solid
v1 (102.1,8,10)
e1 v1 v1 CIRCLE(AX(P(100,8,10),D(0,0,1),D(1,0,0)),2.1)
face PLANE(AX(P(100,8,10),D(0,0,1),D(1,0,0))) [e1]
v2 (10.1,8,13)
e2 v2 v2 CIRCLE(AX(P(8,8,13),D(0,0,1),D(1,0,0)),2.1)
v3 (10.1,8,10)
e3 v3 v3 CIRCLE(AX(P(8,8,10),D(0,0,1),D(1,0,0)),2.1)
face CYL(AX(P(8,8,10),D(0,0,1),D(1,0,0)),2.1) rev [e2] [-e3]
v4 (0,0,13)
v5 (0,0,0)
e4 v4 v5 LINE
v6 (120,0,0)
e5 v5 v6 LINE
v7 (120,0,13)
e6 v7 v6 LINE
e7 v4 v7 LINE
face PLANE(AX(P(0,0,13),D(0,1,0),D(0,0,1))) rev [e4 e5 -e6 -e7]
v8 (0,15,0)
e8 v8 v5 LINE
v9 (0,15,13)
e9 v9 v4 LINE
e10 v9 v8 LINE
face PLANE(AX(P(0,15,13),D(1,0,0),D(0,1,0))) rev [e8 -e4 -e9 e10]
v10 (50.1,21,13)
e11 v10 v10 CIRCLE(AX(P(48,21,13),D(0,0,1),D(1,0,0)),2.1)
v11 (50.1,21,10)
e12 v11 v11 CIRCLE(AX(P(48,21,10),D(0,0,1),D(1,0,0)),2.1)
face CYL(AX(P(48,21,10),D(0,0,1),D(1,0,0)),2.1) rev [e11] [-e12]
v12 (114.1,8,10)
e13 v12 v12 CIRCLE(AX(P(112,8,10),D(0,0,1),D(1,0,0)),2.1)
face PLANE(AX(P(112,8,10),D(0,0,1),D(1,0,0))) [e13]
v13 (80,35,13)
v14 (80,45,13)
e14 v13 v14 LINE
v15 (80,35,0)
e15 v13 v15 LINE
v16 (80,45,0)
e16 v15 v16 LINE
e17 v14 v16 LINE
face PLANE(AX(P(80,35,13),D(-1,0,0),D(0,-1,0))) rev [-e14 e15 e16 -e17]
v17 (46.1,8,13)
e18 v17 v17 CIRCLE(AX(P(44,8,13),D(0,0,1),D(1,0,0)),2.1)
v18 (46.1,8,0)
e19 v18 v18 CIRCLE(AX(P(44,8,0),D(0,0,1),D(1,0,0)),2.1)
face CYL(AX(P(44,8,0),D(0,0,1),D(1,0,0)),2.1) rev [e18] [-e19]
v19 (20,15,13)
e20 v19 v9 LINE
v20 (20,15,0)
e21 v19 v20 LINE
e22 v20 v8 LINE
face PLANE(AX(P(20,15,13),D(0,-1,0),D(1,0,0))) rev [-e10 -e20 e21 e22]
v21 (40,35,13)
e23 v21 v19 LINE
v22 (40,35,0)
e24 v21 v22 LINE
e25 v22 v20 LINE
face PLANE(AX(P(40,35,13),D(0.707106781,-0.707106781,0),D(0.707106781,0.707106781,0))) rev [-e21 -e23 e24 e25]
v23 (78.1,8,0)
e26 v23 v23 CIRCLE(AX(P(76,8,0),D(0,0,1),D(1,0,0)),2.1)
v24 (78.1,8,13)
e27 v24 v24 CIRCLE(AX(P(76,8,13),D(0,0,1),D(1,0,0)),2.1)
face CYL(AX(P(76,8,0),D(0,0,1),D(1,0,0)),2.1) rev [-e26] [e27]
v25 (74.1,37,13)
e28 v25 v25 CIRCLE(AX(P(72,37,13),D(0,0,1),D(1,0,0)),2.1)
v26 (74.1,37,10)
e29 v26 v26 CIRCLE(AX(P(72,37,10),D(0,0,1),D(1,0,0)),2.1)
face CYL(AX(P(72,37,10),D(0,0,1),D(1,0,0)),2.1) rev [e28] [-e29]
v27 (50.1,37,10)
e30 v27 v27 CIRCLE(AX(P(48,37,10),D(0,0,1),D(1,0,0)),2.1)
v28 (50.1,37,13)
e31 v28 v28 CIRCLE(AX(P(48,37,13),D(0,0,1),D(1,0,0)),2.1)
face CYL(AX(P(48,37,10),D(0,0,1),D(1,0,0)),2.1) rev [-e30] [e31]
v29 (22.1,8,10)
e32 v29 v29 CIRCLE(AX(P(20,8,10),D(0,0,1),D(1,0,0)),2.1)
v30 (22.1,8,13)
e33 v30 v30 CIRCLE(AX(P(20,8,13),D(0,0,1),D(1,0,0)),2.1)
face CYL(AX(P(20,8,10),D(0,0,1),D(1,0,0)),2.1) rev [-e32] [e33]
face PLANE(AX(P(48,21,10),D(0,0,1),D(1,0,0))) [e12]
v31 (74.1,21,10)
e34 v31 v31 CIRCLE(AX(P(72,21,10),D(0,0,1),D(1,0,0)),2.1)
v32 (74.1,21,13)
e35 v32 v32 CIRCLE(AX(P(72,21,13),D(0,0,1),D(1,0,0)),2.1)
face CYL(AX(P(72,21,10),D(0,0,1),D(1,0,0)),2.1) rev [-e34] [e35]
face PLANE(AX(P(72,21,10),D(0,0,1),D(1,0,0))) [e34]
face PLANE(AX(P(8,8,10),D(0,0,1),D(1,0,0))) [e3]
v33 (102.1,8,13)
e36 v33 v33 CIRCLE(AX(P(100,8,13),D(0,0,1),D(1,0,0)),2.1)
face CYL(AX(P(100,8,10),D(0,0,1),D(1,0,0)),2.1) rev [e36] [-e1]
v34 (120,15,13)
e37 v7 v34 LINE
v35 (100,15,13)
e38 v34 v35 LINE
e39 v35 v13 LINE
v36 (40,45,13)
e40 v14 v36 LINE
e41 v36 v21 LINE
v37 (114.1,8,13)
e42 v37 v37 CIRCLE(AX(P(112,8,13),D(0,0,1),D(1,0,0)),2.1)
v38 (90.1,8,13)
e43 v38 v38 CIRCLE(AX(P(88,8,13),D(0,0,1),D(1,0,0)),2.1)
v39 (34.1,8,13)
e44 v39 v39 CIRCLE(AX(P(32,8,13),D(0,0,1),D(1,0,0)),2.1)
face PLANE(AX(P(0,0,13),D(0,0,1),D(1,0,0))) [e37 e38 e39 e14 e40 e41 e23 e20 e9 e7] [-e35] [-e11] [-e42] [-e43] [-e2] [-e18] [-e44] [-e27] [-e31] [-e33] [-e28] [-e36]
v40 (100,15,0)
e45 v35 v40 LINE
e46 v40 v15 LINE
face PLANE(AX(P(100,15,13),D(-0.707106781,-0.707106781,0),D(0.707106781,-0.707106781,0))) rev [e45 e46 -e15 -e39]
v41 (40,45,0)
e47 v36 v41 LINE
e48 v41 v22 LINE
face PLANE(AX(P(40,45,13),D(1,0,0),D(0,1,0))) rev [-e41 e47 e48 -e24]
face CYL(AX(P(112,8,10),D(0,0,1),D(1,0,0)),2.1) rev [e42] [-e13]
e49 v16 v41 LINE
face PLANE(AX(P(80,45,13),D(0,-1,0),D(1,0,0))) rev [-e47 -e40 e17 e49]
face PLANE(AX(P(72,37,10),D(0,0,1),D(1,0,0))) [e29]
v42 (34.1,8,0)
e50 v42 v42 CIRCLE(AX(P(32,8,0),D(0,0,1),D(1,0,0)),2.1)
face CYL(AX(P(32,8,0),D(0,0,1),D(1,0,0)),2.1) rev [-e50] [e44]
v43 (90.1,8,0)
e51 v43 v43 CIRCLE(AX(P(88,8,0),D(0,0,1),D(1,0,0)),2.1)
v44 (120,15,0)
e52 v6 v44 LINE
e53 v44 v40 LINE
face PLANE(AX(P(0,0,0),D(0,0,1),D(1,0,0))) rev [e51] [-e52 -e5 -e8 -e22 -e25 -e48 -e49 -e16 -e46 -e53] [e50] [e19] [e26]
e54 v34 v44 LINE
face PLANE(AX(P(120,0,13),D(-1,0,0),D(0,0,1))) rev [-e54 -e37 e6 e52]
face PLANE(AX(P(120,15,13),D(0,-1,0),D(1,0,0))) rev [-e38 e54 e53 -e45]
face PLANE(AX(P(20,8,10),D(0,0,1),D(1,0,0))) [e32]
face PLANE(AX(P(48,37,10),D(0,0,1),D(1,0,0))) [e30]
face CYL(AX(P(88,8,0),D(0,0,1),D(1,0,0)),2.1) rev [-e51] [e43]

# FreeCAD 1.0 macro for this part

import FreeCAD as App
import Part
import Sketcher

V = App.Vector


def add_polygon(sketch, points):
    """Adds a closed chain of lines whose ends are joined by coincident constraints."""
    first, n = sketch.GeometryCount, len(points)
    for a, b in zip(points, points[1:] + points[:1]):
        sketch.addGeometry(Part.LineSegment(App.Vector(*a, 0), App.Vector(*b, 0)), False)
    for i in range(n):
        sketch.addConstraint(Sketcher.Constraint("Coincident", first + i, 2, first + (i + 1) % n, 1))

doc = App.newDocument("Part")
params = doc.addObject("Spreadsheet::Sheet", "Params")
for row, (alias, value) in enumerate([
    ("sketch1_width", "120 mm"),
    ("sketch1_width2", "20 mm"),
    ("sketch1_width3", "40 mm"),
    ("sketch1_height", "15 mm"),
    ("sketch1_height2", "10 mm"),
    ("pad1_length", "13 mm"),
    ("sketch2_diameter", "4.2 mm"),
    ("pocket1_length", "3 mm"),
    ("sketch3_diameter", "4.2 mm"),
], start=1):
    params.set(f"A{row}", alias)
    params.set(f"B{row}", "=" + value)
    params.setAlias(f"B{row}", alias)

body = doc.addObject("PartDesign::Body", "Body")

# Sketch on XY plane
sketch1 = doc.addObject("Sketcher::SketchObject", "Sketch")
body.addObject(sketch1)
sketch1.AttachmentSupport = (doc.XY_Plane, [""])
sketch1.MapMode = "FlatFace"
add_polygon(sketch1, [(0, 0), (120, 0), (120, 15), (100, 15), (80, 35), (80, 45), (40, 45), (40, 35), (20, 15), (0, 15)])  # lines 0-9
sketch1.addConstraint(Sketcher.Constraint("Horizontal", 0))
sketch1.addConstraint(Sketcher.Constraint("Vertical", 1))
sketch1.addConstraint(Sketcher.Constraint("Horizontal", 2))
sketch1.addConstraint(Sketcher.Constraint("Vertical", 4))
sketch1.addConstraint(Sketcher.Constraint("Horizontal", 5))
sketch1.addConstraint(Sketcher.Constraint("Vertical", 6))
sketch1.addConstraint(Sketcher.Constraint("Horizontal", 8))
sketch1.addConstraint(Sketcher.Constraint("Vertical", 9))
sketch1.addConstraint(Sketcher.Constraint("Coincident", 9, 2, -1, 1))
sketch1.addConstraint(Sketcher.Constraint("Perpendicular", 3, 7))
sketch1.addConstraint(Sketcher.Constraint("Horizontal", 3, 2, 6, 2))
sketch1.addConstraint(Sketcher.Constraint("Horizontal", 2, 2, 7, 2))
sketch1.addConstraint(Sketcher.Constraint("Equal", 2, 8))
sketch1.addConstraint(Sketcher.Constraint("Equal", 3, 7))
sketch1.addConstraint(Sketcher.Constraint("DistanceX", 0, 1, 0, 2, 120.0))
sketch1.addConstraint(Sketcher.Constraint("DistanceX", 2, 2, 2, 1, 20.0))
sketch1.addConstraint(Sketcher.Constraint("DistanceX", 5, 2, 5, 1, 40.0))
sketch1.addConstraint(Sketcher.Constraint("DistanceY", 1, 1, 1, 2, 15.0))
sketch1.addConstraint(Sketcher.Constraint("DistanceY", 4, 1, 4, 2, 10.0))
sketch1.setExpression("Constraints[24]", "Params.sketch1_width")
sketch1.setExpression("Constraints[25]", "Params.sketch1_width2")
sketch1.setExpression("Constraints[26]", "Params.sketch1_width3")
sketch1.setExpression("Constraints[27]", "Params.sketch1_height")
sketch1.setExpression("Constraints[28]", "Params.sketch1_height2")
pad1 = doc.addObject("PartDesign::Pad", "Pad")
body.addObject(pad1)
pad1.Profile = sketch1
pad1.setExpression("Length", "Params.pad1_length")

# Sketch on XY plane
sketch2 = doc.addObject("Sketcher::SketchObject", "Sketch001")
body.addObject(sketch2)
sketch2.AttachmentSupport = (doc.XY_Plane, [""])
sketch2.MapMode = "FlatFace"
sketch2.AttachmentOffset = App.Placement(V(0, 0, 13), App.Rotation())
sketch2.addGeometry(Part.Circle(V(48, 37, 0), V(0, 0, 1), 2.1), False)
sketch2.addGeometry(Part.Circle(V(72, 37, 0), V(0, 0, 1), 2.1), False)
sketch2.addGeometry(Part.Circle(V(48, 21, 0), V(0, 0, 1), 2.1), False)
sketch2.addGeometry(Part.Circle(V(72, 21, 0), V(0, 0, 1), 2.1), False)
sketch2.addGeometry(Part.Circle(V(8, 8, 0), V(0, 0, 1), 2.1), False)
sketch2.addGeometry(Part.Circle(V(20, 8, 0), V(0, 0, 1), 2.1), False)
sketch2.addGeometry(Part.Circle(V(100, 8, 0), V(0, 0, 1), 2.1), False)
sketch2.addGeometry(Part.Circle(V(112, 8, 0), V(0, 0, 1), 2.1), False)
sketch2.addConstraint(Sketcher.Constraint("Equal", 0, 1))
sketch2.addConstraint(Sketcher.Constraint("Equal", 1, 2))
sketch2.addConstraint(Sketcher.Constraint("Equal", 2, 3))
sketch2.addConstraint(Sketcher.Constraint("Equal", 3, 4))
sketch2.addConstraint(Sketcher.Constraint("Equal", 4, 5))
sketch2.addConstraint(Sketcher.Constraint("Equal", 5, 6))
sketch2.addConstraint(Sketcher.Constraint("Equal", 6, 7))
sketch2.addConstraint(Sketcher.Constraint("Horizontal", 0, 3, 1, 3))
sketch2.addConstraint(Sketcher.Constraint("Horizontal", 2, 3, 3, 3))
sketch2.addConstraint(Sketcher.Constraint("Horizontal", 4, 3, 5, 3))
sketch2.addConstraint(Sketcher.Constraint("Horizontal", 5, 3, 6, 3))
sketch2.addConstraint(Sketcher.Constraint("Horizontal", 6, 3, 7, 3))
sketch2.addConstraint(Sketcher.Constraint("Vertical", 0, 3, 2, 3))
sketch2.addConstraint(Sketcher.Constraint("Vertical", 1, 3, 3, 3))
sketch2.addConstraint(Sketcher.Constraint("Diameter", 0, 4.2))
sketch2.addConstraint(Sketcher.Constraint("DistanceX", -1, 1, 0, 3, 48.0))
sketch2.addConstraint(Sketcher.Constraint("DistanceY", -1, 1, 0, 3, 37.0))
sketch2.addConstraint(Sketcher.Constraint("DistanceX", -1, 1, 1, 3, 72.0))
sketch2.addConstraint(Sketcher.Constraint("DistanceY", -1, 1, 2, 3, 21.0))
sketch2.addConstraint(Sketcher.Constraint("DistanceX", -1, 1, 4, 3, 8.0))
sketch2.addConstraint(Sketcher.Constraint("DistanceY", -1, 1, 4, 3, 8.0))
sketch2.addConstraint(Sketcher.Constraint("DistanceX", -1, 1, 5, 3, 20.0))
sketch2.addConstraint(Sketcher.Constraint("DistanceX", -1, 1, 6, 3, 100.0))
sketch2.addConstraint(Sketcher.Constraint("DistanceX", -1, 1, 7, 3, 112.0))
sketch2.setExpression("Constraints[14]", "Params.sketch2_diameter")
pocket1 = doc.addObject("PartDesign::Pocket", "Pocket")
body.addObject(pocket1)
pocket1.Profile = sketch2
pocket1.setExpression("Length", "Params.pocket1_length")

# Sketch on XY plane
sketch3 = doc.addObject("Sketcher::SketchObject", "Sketch002")
body.addObject(sketch3)
sketch3.AttachmentSupport = (doc.XY_Plane, [""])
sketch3.MapMode = "FlatFace"
sketch3.AttachmentOffset = App.Placement(V(0, 0, 13), App.Rotation())
sketch3.addGeometry(Part.Circle(V(32, 8, 0), V(0, 0, 1), 2.1), False)
sketch3.addGeometry(Part.Circle(V(44, 8, 0), V(0, 0, 1), 2.1), False)
sketch3.addGeometry(Part.Circle(V(76, 8, 0), V(0, 0, 1), 2.1), False)
sketch3.addGeometry(Part.Circle(V(88, 8, 0), V(0, 0, 1), 2.1), False)
sketch3.addConstraint(Sketcher.Constraint("Equal", 0, 1))
sketch3.addConstraint(Sketcher.Constraint("Equal", 1, 2))
sketch3.addConstraint(Sketcher.Constraint("Equal", 2, 3))
sketch3.addConstraint(Sketcher.Constraint("Horizontal", 0, 3, 1, 3))
sketch3.addConstraint(Sketcher.Constraint("Horizontal", 1, 3, 2, 3))
sketch3.addConstraint(Sketcher.Constraint("Horizontal", 2, 3, 3, 3))
sketch3.addConstraint(Sketcher.Constraint("Diameter", 0, 4.2))
sketch3.addConstraint(Sketcher.Constraint("DistanceX", -1, 1, 0, 3, 32.0))
sketch3.addConstraint(Sketcher.Constraint("DistanceY", -1, 1, 0, 3, 8.0))
sketch3.addConstraint(Sketcher.Constraint("DistanceX", -1, 1, 1, 3, 44.0))
sketch3.addConstraint(Sketcher.Constraint("DistanceX", -1, 1, 2, 3, 76.0))
sketch3.addConstraint(Sketcher.Constraint("DistanceX", -1, 1, 3, 3, 88.0))
sketch3.setExpression("Constraints[6]", "Params.sketch3_diameter")
pocket2 = doc.addObject("PartDesign::Pocket", "Pocket001")
body.addObject(pocket2)
pocket2.Profile = sketch3
pocket2.Type = "ThroughAll"

doc.recompute()
